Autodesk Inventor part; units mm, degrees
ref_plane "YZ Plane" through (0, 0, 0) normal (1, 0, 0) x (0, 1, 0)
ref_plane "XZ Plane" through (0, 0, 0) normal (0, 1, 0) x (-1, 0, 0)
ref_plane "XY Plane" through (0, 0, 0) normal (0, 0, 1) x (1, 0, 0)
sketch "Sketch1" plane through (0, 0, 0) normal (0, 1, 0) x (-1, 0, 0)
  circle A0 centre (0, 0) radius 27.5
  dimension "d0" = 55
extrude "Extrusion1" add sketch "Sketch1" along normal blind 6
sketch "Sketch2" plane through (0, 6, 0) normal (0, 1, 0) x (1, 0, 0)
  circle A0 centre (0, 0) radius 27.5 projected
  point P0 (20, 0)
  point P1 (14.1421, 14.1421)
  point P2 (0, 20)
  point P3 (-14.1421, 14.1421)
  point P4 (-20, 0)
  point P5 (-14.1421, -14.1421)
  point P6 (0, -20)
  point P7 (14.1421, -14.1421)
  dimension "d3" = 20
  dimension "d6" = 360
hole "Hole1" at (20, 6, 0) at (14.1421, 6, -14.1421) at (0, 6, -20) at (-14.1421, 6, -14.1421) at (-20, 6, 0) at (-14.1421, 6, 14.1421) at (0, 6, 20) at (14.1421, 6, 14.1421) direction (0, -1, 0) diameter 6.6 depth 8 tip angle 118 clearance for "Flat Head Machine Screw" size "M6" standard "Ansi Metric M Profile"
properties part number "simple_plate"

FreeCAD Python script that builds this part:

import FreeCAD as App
import Part
import Sketcher

V = App.Vector

doc = App.newDocument("Part")
body = doc.addObject("PartDesign::Body", "Body")

sketch1 = body.newObject("Sketcher::SketchObject", "Sketch")
sketch1.AttachmentSupport = (doc.getObject("XZ_Plane"), [""])
sketch1.MapMode = "FlatFace"
sketch1.addGeometry(Part.Circle(V(0, 0, 0), V(0, 0, 1), 28), False)
sketch1.addConstraint([
    Sketcher.Constraint("Coincident", 0, 3, -1, 1),
    Sketcher.Constraint("Diameter", 0, 55.0),
])
pad1 = body.newObject("PartDesign::Pad", "Pad")
pad1.Profile = sketch1
pad1.Length = 6
pad1.Reversed = True

sketch2 = body.newObject("Sketcher::SketchObject", "Sketch001")
sketch2.AttachmentSupport = (doc.getObject("XZ_Plane"), [""])
sketch2.MapMode = "FlatFace"
sketch2.AttachmentOffset = App.Placement(V(0, 0, -6), App.Rotation())
sketch2.addGeometry([
    Part.Circle(V(20, 0, 0), V(0, 0, 1), 3.3),
    Part.Circle(V(14.1, -14.1, 0), V(0, 0, 1), 3.3),
    Part.Circle(V(0, -20, 0), V(0, 0, 1), 3.3),
    Part.Circle(V(-14.1, -14.1, 0), V(0, 0, 1), 3.3),
    Part.Circle(V(-20, 0, 0), V(0, 0, 1), 3.3),
    Part.Circle(V(-14.1, 14.1, 0), V(0, 0, 1), 3.3),
    Part.Circle(V(0, 20, 0), V(0, 0, 1), 3.3),
    Part.Circle(V(14.1, 14.1, 0), V(0, 0, 1), 3.3),
], False)
sketch2.addConstraint([
    Sketcher.Constraint("Equal", 0, 1),
    Sketcher.Constraint("Equal", 1, 2),
    Sketcher.Constraint("Equal", 2, 3),
    Sketcher.Constraint("Equal", 3, 4),
    Sketcher.Constraint("Equal", 4, 5),
    Sketcher.Constraint("Equal", 5, 6),
    Sketcher.Constraint("Equal", 6, 7),
    Sketcher.Constraint("Symmetric", 0, 3, 4, 3, -1, 1),
    Sketcher.Constraint("Symmetric", 1, 3, 5, 3, -1, 1),
    Sketcher.Constraint("Symmetric", 2, 3, 6, 3, -1, 1),
    Sketcher.Constraint("Symmetric", 3, 3, 7, 3, -1, 1),
    Sketcher.Constraint("Symmetric", 1, 3, 3, 3, -2),
    Sketcher.Constraint("PointOnObject", 0, 3, -1),
    Sketcher.Constraint("PointOnObject", 2, 3, -2),
    Sketcher.Constraint("Diameter", 0, 6.6),
    Sketcher.Constraint("DistanceX", -1, 1, 0, 3, 20.0),
    Sketcher.Constraint("DistanceY", 2, 3, -1, 1, 20.0),
    Sketcher.Constraint("DistanceX", -1, 1, 1, 3, 14.142),
    Sketcher.Constraint("DistanceY", 1, 3, -1, 1, 14.142),
])
doc.recompute()
hole = body.newObject("PartDesign::Hole", "Hole")
hole.Profile = sketch2
hole.ThreadType = "None"
hole.Diameter = 6.6
hole.DepthType = "Dimension"
hole.Depth = 8
hole.DrillPoint = "Angled"
hole.DrillPointAngle = 118
hole.Reversed = True

doc.recompute()
